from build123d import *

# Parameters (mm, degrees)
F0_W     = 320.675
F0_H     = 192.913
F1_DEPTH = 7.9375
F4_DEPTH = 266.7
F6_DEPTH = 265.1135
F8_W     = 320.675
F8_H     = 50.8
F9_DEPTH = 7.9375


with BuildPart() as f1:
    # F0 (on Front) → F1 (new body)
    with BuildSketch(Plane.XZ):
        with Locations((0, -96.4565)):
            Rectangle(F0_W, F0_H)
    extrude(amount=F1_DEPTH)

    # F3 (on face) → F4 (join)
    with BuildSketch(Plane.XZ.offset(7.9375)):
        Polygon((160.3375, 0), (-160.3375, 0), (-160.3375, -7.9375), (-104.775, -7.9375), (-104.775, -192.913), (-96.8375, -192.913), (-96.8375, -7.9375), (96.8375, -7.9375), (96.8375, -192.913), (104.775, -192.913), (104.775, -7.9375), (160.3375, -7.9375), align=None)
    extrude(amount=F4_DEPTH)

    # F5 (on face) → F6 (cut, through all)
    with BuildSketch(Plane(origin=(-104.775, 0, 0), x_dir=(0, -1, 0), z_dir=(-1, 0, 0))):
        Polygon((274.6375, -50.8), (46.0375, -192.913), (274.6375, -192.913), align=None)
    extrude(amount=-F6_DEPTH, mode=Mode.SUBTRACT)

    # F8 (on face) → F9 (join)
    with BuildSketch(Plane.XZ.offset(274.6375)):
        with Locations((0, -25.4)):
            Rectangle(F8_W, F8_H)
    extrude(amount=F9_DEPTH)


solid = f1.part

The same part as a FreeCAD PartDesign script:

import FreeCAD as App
import Part
import Sketcher
from FreeCAD import Vector
Q = App.Units.Quantity


def add_polygon(sketch, points):
    """Adds a closed chain of lines whose ends are joined by coincident constraints."""
    first, n = sketch.GeometryCount, len(points)
    for a, b in zip(points, points[1:] + points[:1]):
        sketch.addGeometry(Part.LineSegment(App.Vector(*a, 0), App.Vector(*b, 0)), False)
    for i in range(n):
        sketch.addConstraint(Sketcher.Constraint("Coincident", first + i, 2, first + (i + 1) % n, 1))

doc = App.newDocument("Part")
body = doc.addObject("PartDesign::Body", "Body")

# Sketch on XZ plane
sketch1 = body.newObject("Sketcher::SketchObject", "Sketch")
sketch1.AttachmentSupport = (doc.getObject("XZ_Plane"), [""])
sketch1.MapMode = "FlatFace"
add_polygon(sketch1, [(-160, 0), (-160, -193), (160, -193), (160, 0)])  # lines 0-3
sketch1.addConstraint([
    Sketcher.Constraint("Vertical", 0),
    Sketcher.Constraint("Horizontal", 1),
    Sketcher.Constraint("Vertical", 2),
    Sketcher.Constraint("Horizontal", 3),
    Sketcher.Constraint("Symmetric", 2, 2, 3, 2, -1, 1),
    Sketcher.Constraint("DistanceX", 1, 1, 1, 2, Q("12.625 in")),
    Sketcher.Constraint("DistanceY", 0, 2, 0, 1, Q("7.595 in")),
])
pad1 = body.newObject("PartDesign::Pad", "Pad")
pad1.Profile = sketch1
pad1.Length = Q("0.3125 in")

# Sketch on XZ plane
sketch2 = body.newObject("Sketcher::SketchObject", "Sketch001")
sketch2.AttachmentSupport = (doc.getObject("XZ_Plane"), [""])
sketch2.MapMode = "FlatFace"
sketch2.AttachmentOffset = App.Placement(Vector(0, 0, 0.3125 * 25.4), App.Rotation())
add_polygon(sketch2, [(160, 0), (-160, 0), (-160, -8), (-105, -8), (-105, -193), (-97, -193), (-97, -8), (97, -8), (97, -193), (105, -193), (105, -8), (160, -8)])  # lines 0-11
sketch2.addConstraint([
    Sketcher.Constraint("Horizontal", 0),
    Sketcher.Constraint("Vertical", 1),
    Sketcher.Constraint("Horizontal", 2),
    Sketcher.Constraint("Vertical", 3),
    Sketcher.Constraint("Horizontal", 4),
    Sketcher.Constraint("Vertical", 5),
    Sketcher.Constraint("Horizontal", 6),
    Sketcher.Constraint("Vertical", 7),
    Sketcher.Constraint("Horizontal", 8),
    Sketcher.Constraint("Vertical", 9),
    Sketcher.Constraint("Horizontal", 10),
    Sketcher.Constraint("Vertical", 11),
    Sketcher.Constraint("Symmetric", 0, 2, 11, 2, -1, 1),
    Sketcher.Constraint("Symmetric", 4, 2, 7, 2, -2),
    Sketcher.Constraint("Symmetric", 2, 2, 9, 2, -2),
    Sketcher.Constraint("Horizontal", 2, 2, 5, 2),
    Sketcher.Constraint("Equal", 8, 1),
    Sketcher.Constraint("DistanceX", 1, 2, 4, 2, Q("2.5 in")),
    Sketcher.Constraint("DistanceX", 0, 2, 0, 1, Q("12.625 in")),
    Sketcher.Constraint("DistanceX", 2, 1, 2, 2, Q("2.1875 in")),
    Sketcher.Constraint("DistanceY", 3, 2, 3, 1, Q("7.2825 in")),
])
pad2 = body.newObject("PartDesign::Pad", "Pad001")
pad2.Profile = sketch2
pad2.Length = Q("10.5 in")

# Sketch on YZ plane
sketch3 = body.newObject("Sketcher::SketchObject", "Sketch002")
sketch3.AttachmentSupport = (doc.getObject("YZ_Plane"), [""])
sketch3.MapMode = "FlatFace"
sketch3.AttachmentOffset = App.Placement(Vector(0, 0, -4.125 * 25.4), App.Rotation())
add_polygon(sketch3, [(-275, -51), (-46, -193), (-275, -193)])  # lines 0-2
sketch3.addConstraint([
    Sketcher.Constraint("Horizontal", 1),
    Sketcher.Constraint("Vertical", 2),
    Sketcher.Constraint("DistanceX", 1, 2, 1, 1, Q("9 in")),
    Sketcher.Constraint("DistanceY", 2, 2, -1, 1, Q("2 in")),
    Sketcher.Constraint("DistanceY", 2, 1, 2, 2, Q("5.595 in")),
    Sketcher.Constraint("DistanceX", 0, 2, -1, 1, Q("1.8125 in")),
])
pocket1 = body.newObject("PartDesign::Pocket", "Pocket")
pocket1.Profile = sketch3
pocket1.Type = "ThroughAll"
pocket1.Reversed = True

# Sketch on XZ plane
sketch4 = body.newObject("Sketcher::SketchObject", "Sketch003")
sketch4.AttachmentSupport = (doc.getObject("XZ_Plane"), [""])
sketch4.MapMode = "FlatFace"
sketch4.AttachmentOffset = App.Placement(Vector(0, 0, 10.8125 * 25.4), App.Rotation())
add_polygon(sketch4, [(-160, 0), (-160, -51), (160, -51), (160, 0)])  # lines 0-3
sketch4.addConstraint([
    Sketcher.Constraint("Vertical", 0),
    Sketcher.Constraint("Horizontal", 1),
    Sketcher.Constraint("Vertical", 2),
    Sketcher.Constraint("Horizontal", 3),
    Sketcher.Constraint("Symmetric", 2, 2, 3, 2, -1, 1),
    Sketcher.Constraint("DistanceY", 0, 2, 0, 1, Q("2 in")),
    Sketcher.Constraint("DistanceX", 1, 1, 1, 2, Q("12.625 in")),
])
pad3 = body.newObject("PartDesign::Pad", "Pad002")
pad3.Profile = sketch4
pad3.Length = Q("0.3125 in")

doc.recompute()
